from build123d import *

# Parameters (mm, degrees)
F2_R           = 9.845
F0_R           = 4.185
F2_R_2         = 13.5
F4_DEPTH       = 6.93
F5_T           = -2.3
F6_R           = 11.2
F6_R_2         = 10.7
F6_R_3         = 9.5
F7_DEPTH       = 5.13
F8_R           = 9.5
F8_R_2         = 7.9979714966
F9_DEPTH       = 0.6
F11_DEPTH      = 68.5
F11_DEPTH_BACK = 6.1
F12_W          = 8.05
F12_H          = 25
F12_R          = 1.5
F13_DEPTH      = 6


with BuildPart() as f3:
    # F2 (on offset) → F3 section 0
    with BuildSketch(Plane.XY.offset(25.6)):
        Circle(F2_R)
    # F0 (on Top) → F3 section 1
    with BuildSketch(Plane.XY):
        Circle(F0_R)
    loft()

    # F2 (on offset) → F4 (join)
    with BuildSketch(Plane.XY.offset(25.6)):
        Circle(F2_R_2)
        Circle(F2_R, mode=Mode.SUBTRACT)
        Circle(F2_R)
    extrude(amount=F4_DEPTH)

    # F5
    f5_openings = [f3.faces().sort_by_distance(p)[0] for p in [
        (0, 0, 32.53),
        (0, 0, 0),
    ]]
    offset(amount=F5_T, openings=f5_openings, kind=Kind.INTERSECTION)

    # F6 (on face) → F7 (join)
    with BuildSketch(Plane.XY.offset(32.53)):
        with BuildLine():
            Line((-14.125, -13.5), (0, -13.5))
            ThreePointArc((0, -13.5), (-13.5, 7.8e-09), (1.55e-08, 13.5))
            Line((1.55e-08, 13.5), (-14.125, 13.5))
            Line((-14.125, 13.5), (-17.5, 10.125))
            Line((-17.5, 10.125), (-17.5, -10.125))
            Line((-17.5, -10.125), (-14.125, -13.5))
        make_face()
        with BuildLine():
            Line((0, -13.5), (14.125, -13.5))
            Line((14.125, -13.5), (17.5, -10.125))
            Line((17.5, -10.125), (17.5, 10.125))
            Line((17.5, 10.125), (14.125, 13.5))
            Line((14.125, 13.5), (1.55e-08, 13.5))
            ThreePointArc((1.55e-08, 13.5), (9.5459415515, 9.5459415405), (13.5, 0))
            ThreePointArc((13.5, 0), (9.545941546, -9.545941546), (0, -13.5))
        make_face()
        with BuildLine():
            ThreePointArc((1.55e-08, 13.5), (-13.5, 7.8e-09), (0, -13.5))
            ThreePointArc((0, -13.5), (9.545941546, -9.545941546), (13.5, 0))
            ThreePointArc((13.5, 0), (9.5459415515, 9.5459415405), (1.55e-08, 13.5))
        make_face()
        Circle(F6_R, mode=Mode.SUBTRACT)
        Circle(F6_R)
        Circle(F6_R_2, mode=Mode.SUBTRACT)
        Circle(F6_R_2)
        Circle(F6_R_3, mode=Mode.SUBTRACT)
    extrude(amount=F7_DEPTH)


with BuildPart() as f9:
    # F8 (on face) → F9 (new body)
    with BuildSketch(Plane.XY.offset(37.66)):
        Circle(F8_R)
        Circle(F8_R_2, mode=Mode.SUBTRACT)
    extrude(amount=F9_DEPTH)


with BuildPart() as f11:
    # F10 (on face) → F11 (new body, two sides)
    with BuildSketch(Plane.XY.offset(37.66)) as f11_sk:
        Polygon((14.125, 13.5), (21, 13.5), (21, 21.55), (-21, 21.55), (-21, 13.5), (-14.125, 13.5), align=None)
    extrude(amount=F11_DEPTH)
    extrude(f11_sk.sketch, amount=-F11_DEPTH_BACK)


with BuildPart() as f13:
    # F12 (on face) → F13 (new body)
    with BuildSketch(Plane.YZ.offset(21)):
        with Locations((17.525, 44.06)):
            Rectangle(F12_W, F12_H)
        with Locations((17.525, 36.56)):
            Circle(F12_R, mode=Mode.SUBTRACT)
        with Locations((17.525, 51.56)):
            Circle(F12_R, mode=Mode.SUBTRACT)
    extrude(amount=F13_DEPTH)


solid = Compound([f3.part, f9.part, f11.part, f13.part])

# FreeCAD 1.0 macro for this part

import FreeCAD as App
import Part
import Sketcher
from FreeCAD import Vector
Q = App.Units.Quantity


def faces_at(feature, points):
    """Names of the faces that lie closest to the given points."""
    faces = feature.Shape.Faces
    near = lambda p: min(range(len(faces)), key=lambda i: faces[i].distToShape(Part.Vertex(*p))[0])
    return sorted({f"Face{near(p) + 1}" for p in points})


def add_polygon(sketch, points):
    """Adds a closed chain of lines whose ends are joined by coincident constraints."""
    first, n = sketch.GeometryCount, len(points)
    for a, b in zip(points, points[1:] + points[:1]):
        sketch.addGeometry(Part.LineSegment(App.Vector(*a, 0), App.Vector(*b, 0)), False)
    for i in range(n):
        sketch.addConstraint(Sketcher.Constraint("Coincident", first + i, 2, first + (i + 1) % n, 1))

doc = App.newDocument("Part")
body = doc.addObject("PartDesign::Body", "Body")

# Sketch on XY plane
sketch1 = body.newObject("Sketcher::SketchObject", "Sketch")
sketch1.AttachmentSupport = (doc.getObject("XY_Plane"), [""])
sketch1.MapMode = "FlatFace"
sketch1.AttachmentOffset = App.Placement(Vector(0, 0, 25.6), App.Rotation())
sketch1.addGeometry(Part.Circle(Vector(0, 0, 0), Vector(0, 0, 1), 9.845), False)
sketch1.addConstraint(Sketcher.Constraint("Coincident", 0, 3, -1, 1))
sketch1.addConstraint(Sketcher.Constraint("Diameter", 0, Q("19.69 mm")))

# Sketch on XY plane
sketch2 = body.newObject("Sketcher::SketchObject", "Sketch001")
sketch2.AttachmentSupport = (doc.getObject("XY_Plane"), [""])
sketch2.MapMode = "FlatFace"
sketch2.addGeometry(Part.Circle(Vector(0, 0, 0), Vector(0, 0, 1), 4.185), False)
sketch2.addConstraint(Sketcher.Constraint("Coincident", 0, 3, -1, 1))
sketch2.addConstraint(Sketcher.Constraint("Diameter", 0, Q("8.37 mm")))

additiveloft = body.newObject("PartDesign::AdditiveLoft", "AdditiveLoft")
additiveloft.Profile = sketch1
additiveloft.Sections = [sketch2]

# Sketch on XY plane
sketch3 = body.newObject("Sketcher::SketchObject", "Sketch002")
sketch3.AttachmentSupport = (doc.getObject("XY_Plane"), [""])
sketch3.MapMode = "FlatFace"
sketch3.AttachmentOffset = App.Placement(Vector(0, 0, 25.6), App.Rotation())
sketch3.addGeometry(Part.Circle(Vector(0, 0, 0), Vector(0, 0, 1), 13.5), False)
sketch3.addConstraint(Sketcher.Constraint("Coincident", 0, 3, -1, 1))
sketch3.addConstraint(Sketcher.Constraint("Diameter", 0, Q("27 mm")))
pad1 = body.newObject("PartDesign::Pad", "Pad")
pad1.Profile = sketch3
pad1.Length = 6.93
doc.recompute()

thickness = body.newObject("PartDesign::Thickness", "Thickness")
thickness.Base = (pad1, faces_at(pad1, [(0, 0, 32.53), (0, 0, 0)]))
thickness.Value = 2.3
thickness.Reversed = True
thickness.Join = "Intersection"

# Sketch on XY plane
sketch4 = body.newObject("Sketcher::SketchObject", "Sketch003")
sketch4.AttachmentSupport = (doc.getObject("XY_Plane"), [""])
sketch4.MapMode = "FlatFace"
sketch4.AttachmentOffset = App.Placement(Vector(0, 0, 32.53), App.Rotation())
add_polygon(sketch4, [(-14.125, -13.5), (14.125, -13.5), (17.5, -10.125), (17.5, 10.125), (14.125, 13.5), (-14.125, 13.5), (-17.5, 10.125), (-17.5, -10.125)])  # lines 0-7
sketch4.addGeometry(Part.Circle(Vector(0, 0, 0), Vector(0, 0, 1), 9.5), False)  # 8
sketch4.addConstraint(Sketcher.Constraint("Horizontal", 0))
sketch4.addConstraint(Sketcher.Constraint("Vertical", 2))
sketch4.addConstraint(Sketcher.Constraint("Horizontal", 4))
sketch4.addConstraint(Sketcher.Constraint("Vertical", 6))
sketch4.addConstraint(Sketcher.Constraint("Coincident", 8, 3, -1, 1))
sketch4.addConstraint(Sketcher.Constraint("Symmetric", 0, 2, 4, 2, -1, 1))
sketch4.addConstraint(Sketcher.Constraint("Symmetric", 1, 2, 5, 2, -1, 1))
sketch4.addConstraint(Sketcher.Constraint("Perpendicular", 1, 3))
sketch4.addConstraint(Sketcher.Constraint("Perpendicular", 5, 7))
sketch4.addConstraint(Sketcher.Constraint("Horizontal", 2, 2, 5, 2))
sketch4.addConstraint(Sketcher.Constraint("Horizontal", 1, 2, 6, 2))
sketch4.addConstraint(Sketcher.Constraint("Vertical", 0, 2, 3, 2))
sketch4.addConstraint(Sketcher.Constraint("Diameter", 8, Q("19 mm")))
sketch4.addConstraint(Sketcher.Constraint("DistanceY", 0, 2, 3, 2, Q("27 mm")))
sketch4.addConstraint(Sketcher.Constraint("DistanceX", 5, 2, 2, 2, Q("35 mm")))
sketch4.addConstraint(Sketcher.Constraint("DistanceX", 0, 1, 0, 2, Q("28.25 mm")))
pad2 = body.newObject("PartDesign::Pad", "Pad001")
pad2.Profile = sketch4
pad2.Length = 5.13
body2 = doc.addObject("PartDesign::Body", "Body001")

# Sketch on XY plane
sketch5 = body2.newObject("Sketcher::SketchObject", "Sketch004")
sketch5.AttachmentSupport = (doc.getObject("XY_Plane001"), [""])
sketch5.MapMode = "FlatFace"
sketch5.AttachmentOffset = App.Placement(Vector(0, 0, 37.66), App.Rotation())
sketch5.addGeometry(Part.Circle(Vector(0, 0, 0), Vector(0, 0, 1), 9.5), False)
sketch5.addGeometry(Part.Circle(Vector(0, 0, 0), Vector(0, 0, 1), 7.997971), False)
sketch5.addConstraint(Sketcher.Constraint("Coincident", 0, 3, -1, 1))
sketch5.addConstraint(Sketcher.Constraint("Coincident", 1, 3, -1, 1))
sketch5.addConstraint(Sketcher.Constraint("Diameter", 0, Q("19 mm")))
sketch5.addConstraint(Sketcher.Constraint("Diameter", 1, Q("15.995943 mm")))
pad3 = body2.newObject("PartDesign::Pad", "Pad002")
pad3.Profile = sketch5
pad3.Length = 0.6
body3 = doc.addObject("PartDesign::Body", "Body002")

# Sketch on XY plane
sketch6 = body3.newObject("Sketcher::SketchObject", "Sketch005")
sketch6.AttachmentSupport = (doc.getObject("XY_Plane002"), [""])
sketch6.MapMode = "FlatFace"
sketch6.AttachmentOffset = App.Placement(Vector(0, 0, 37.66), App.Rotation())
add_polygon(sketch6, [(21, 13.5), (21, 21.55), (-21, 21.55), (-21, 13.5)])  # lines 0-3
sketch6.addConstraint(Sketcher.Constraint("Vertical", 0))
sketch6.addConstraint(Sketcher.Constraint("Horizontal", 1))
sketch6.addConstraint(Sketcher.Constraint("Vertical", 2))
sketch6.addConstraint(Sketcher.Constraint("Horizontal", 3))
sketch6.addConstraint(Sketcher.Constraint("DistanceX", 1, 2, 1, 1, Q("42 mm")))
sketch6.addConstraint(Sketcher.Constraint("DistanceX", -1, 1, 0, 2, Q("21 mm")))
sketch6.addConstraint(Sketcher.Constraint("DistanceY", 0, 1, 0, 2, Q("8.05 mm")))
sketch6.addConstraint(Sketcher.Constraint("DistanceY", -1, 1, 2, 2, Q("13.5 mm")))
pad4 = body3.newObject("PartDesign::Pad", "Pad003")
pad4.Profile = sketch6
pad4.Type = "TwoLengths"
pad4.Length = 68.5
pad4.Length2 = 6.1
body4 = doc.addObject("PartDesign::Body", "Body003")

# Sketch on YZ plane
sketch7 = body4.newObject("Sketcher::SketchObject", "Sketch006")
sketch7.AttachmentSupport = (doc.getObject("YZ_Plane003"), [""])
sketch7.MapMode = "FlatFace"
sketch7.AttachmentOffset = App.Placement(Vector(0, 0, 21), App.Rotation())
add_polygon(sketch7, [(13.5, 56.56), (13.5, 31.56), (21.55, 31.56), (21.55, 56.56)])  # lines 0-3
sketch7.addGeometry(Part.Circle(Vector(17.525, 36.56, 0), Vector(0, 0, 1), 1.5), False)  # 4
sketch7.addGeometry(Part.Circle(Vector(17.525, 51.56, 0), Vector(0, 0, 1), 1.5), False)  # 5
sketch7.addConstraint(Sketcher.Constraint("Vertical", 0))
sketch7.addConstraint(Sketcher.Constraint("Horizontal", 1))
sketch7.addConstraint(Sketcher.Constraint("Vertical", 2))
sketch7.addConstraint(Sketcher.Constraint("Horizontal", 3))
sketch7.addConstraint(Sketcher.Constraint("Equal", 4, 5))
sketch7.addConstraint(Sketcher.Constraint("Vertical", 4, 3, 5, 3))
sketch7.addConstraint(Sketcher.Constraint("Diameter", 4, Q("3 mm")))
sketch7.addConstraint(Sketcher.Constraint("DistanceY", 0, 2, 0, 1, Q("25 mm")))
sketch7.addConstraint(Sketcher.Constraint("DistanceY", 4, 3, 5, 3, Q("15 mm")))
sketch7.addConstraint(Sketcher.Constraint("DistanceY", 0, 2, 4, 3, Q("5 mm")))
sketch7.addConstraint(Sketcher.Constraint("DistanceX", 1, 1, 1, 2, Q("8.05 mm")))
sketch7.addConstraint(Sketcher.Constraint("DistanceX", -1, 1, 0, 2, Q("13.5 mm")))
sketch7.addConstraint(Sketcher.Constraint("DistanceY", -1, 1, 4, 3, Q("36.56 mm")))
sketch7.addConstraint(Sketcher.Constraint("DistanceX", -1, 1, 4, 3, Q("17.525 mm")))
pad5 = body4.newObject("PartDesign::Pad", "Pad004")
pad5.Profile = sketch7
pad5.Length = 6

doc.recompute()
